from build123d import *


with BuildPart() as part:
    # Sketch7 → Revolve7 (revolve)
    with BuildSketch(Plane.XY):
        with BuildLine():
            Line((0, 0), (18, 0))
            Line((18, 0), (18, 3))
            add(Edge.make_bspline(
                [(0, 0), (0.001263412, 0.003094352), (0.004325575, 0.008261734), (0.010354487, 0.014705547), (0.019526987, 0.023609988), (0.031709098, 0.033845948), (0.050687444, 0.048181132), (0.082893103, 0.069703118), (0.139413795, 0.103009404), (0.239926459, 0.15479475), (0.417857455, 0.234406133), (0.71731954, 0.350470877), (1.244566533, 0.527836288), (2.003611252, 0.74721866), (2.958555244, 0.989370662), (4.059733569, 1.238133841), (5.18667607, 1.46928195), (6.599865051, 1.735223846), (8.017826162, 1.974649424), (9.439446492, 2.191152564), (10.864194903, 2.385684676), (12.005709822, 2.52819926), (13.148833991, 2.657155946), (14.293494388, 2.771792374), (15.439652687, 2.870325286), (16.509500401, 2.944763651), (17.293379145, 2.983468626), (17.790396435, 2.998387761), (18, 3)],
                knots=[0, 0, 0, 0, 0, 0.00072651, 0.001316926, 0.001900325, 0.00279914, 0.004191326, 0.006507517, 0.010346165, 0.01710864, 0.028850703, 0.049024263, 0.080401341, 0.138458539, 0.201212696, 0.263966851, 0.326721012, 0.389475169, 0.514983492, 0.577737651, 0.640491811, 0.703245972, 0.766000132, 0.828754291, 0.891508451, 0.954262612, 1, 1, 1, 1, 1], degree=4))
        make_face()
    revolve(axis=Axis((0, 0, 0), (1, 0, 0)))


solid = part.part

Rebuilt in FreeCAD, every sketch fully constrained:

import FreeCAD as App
import Part
import Sketcher

V = App.Vector

doc = App.newDocument("Part")
params = doc.addObject("Spreadsheet::Sheet", "Params")
for row, (alias, value) in enumerate([
    ("revolution_angle", "360 deg"),
], start=1):
    params.set(f"A{row}", alias)
    params.set(f"B{row}", "=" + value)
    params.setAlias(f"B{row}", alias)

body = doc.addObject("PartDesign::Body", "Body")

# Sketch on XY plane
sketch1 = body.newObject("Sketcher::SketchObject", "Sketch")
sketch1.AttachmentSupport = (doc.getObject("XY_Plane"), [""])
sketch1.MapMode = "FlatFace"
sketch1.addGeometry([
    Part.LineSegment(V(0, 0, 0), V(18, 0, 0)),
    Part.LineSegment(V(18, 0, 0), V(18, 3, 0)),
    Part.BSplineCurve([V(0, 0, 0), V(0.001263, 0.003094, 0), V(0.004326, 0.008262, 0), V(0.010354, 0.014706, 0), V(0.019527, 0.02361, 0), V(0.031709, 0.033846, 0), V(0.050687, 0.048181, 0), V(0.082893, 0.069703, 0), V(0.139414, 0.103009, 0), V(0.239926, 0.154795, 0), V(0.417857, 0.234406, 0), V(0.71732, 0.350471, 0), V(1.244567, 0.527836, 0), V(2.003611, 0.747219, 0), V(2.958555, 0.989371, 0), V(4.059734, 1.238134, 0), V(5.186676, 1.469282, 0), V(6.599865, 1.735224, 0), V(8.017826, 1.974649, 0), V(9.439446, 2.191153, 0), V(10.864195, 2.385685, 0), V(12.00571, 2.528199, 0), V(13.148834, 2.657156, 0), V(14.293494, 2.771792, 0), V(15.439653, 2.870325, 0), V(16.5095, 2.944764, 0), V(17.293379, 2.983469, 0), V(17.790396, 2.998388, 0), V(18, 3, 0)], [5, 1, 1, 1, 1, 1, 1, 1, 1, 1, 1, 1, 1, 1, 1, 1, 1, 1, 1, 1, 1, 1, 1, 1, 1, 5], [0, 0.00072651, 0.001316926, 0.001900325, 0.00279914, 0.004191326, 0.006507517, 0.010346165, 0.01710864, 0.028850703, 0.049024263, 0.080401341, 0.138458539, 0.201212696, 0.263966851, 0.326721012, 0.389475169, 0.514983492, 0.577737651, 0.640491811, 0.703245972, 0.766000132, 0.828754291, 0.891508451, 0.954262612, 1], False, 4, [1, 1, 1, 1, 1, 1, 1, 1, 1, 1, 1, 1, 1, 1, 1, 1, 1, 1, 1, 1, 1, 1, 1, 1, 1, 1, 1, 1, 1], False),
], False)
sketch1.addConstraint([
    Sketcher.Constraint("Block", 2),
    Sketcher.Constraint("Coincident", 0, 2, 1, 1),
    Sketcher.Constraint("Coincident", 1, 2, 2, 2),
    Sketcher.Constraint("Coincident", 2, 1, 0, 1),
    Sketcher.Constraint("Horizontal", 0),
    Sketcher.Constraint("Vertical", 1),
])
revolution = body.newObject("PartDesign::Revolution", "Revolution")
revolution.Profile = sketch1
revolution.ReferenceAxis = (sketch1, ["H_Axis"])
revolution.setExpression("Angle", "Params.revolution_angle")

doc.recompute()
